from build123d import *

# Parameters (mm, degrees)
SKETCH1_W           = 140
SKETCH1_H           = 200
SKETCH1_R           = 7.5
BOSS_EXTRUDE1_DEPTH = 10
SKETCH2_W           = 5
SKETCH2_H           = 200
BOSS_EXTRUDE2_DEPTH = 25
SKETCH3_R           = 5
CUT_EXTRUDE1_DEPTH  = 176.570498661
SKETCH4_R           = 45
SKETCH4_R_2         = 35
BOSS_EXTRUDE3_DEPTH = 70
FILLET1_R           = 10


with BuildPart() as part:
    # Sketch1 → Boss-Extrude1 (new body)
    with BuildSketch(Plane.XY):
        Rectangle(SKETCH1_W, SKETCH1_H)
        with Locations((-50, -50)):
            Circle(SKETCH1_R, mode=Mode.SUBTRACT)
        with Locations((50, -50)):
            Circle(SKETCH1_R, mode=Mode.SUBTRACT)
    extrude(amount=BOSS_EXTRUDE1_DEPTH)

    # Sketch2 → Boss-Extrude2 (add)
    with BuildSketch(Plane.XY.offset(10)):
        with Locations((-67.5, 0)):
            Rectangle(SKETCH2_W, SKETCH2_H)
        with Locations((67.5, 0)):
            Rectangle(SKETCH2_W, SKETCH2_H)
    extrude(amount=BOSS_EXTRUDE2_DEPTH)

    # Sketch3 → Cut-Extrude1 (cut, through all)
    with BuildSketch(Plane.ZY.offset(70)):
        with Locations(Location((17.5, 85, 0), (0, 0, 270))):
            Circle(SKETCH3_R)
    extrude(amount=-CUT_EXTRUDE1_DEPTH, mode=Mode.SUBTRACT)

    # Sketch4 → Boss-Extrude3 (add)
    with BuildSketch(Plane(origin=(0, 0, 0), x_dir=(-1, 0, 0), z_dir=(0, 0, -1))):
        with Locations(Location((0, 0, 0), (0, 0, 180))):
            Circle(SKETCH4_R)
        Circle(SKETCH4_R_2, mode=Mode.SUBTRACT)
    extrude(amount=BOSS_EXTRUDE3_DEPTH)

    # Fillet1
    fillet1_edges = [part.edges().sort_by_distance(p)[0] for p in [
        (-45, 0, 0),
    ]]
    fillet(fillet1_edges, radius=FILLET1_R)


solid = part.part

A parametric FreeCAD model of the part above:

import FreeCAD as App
import Part
import Sketcher
from FreeCAD import Vector
Q = App.Units.Quantity


def edges_at(feature, points):
    """Names of the edges that pass closest to the given points."""
    edges = feature.Shape.Edges
    near = lambda p: min(range(len(edges)), key=lambda i: edges[i].distToShape(Part.Vertex(*p))[0])
    return sorted({f"Edge{near(p) + 1}" for p in points})


def add_polygon(sketch, points):
    """Adds a closed chain of lines whose ends are joined by coincident constraints."""
    first, n = sketch.GeometryCount, len(points)
    for a, b in zip(points, points[1:] + points[:1]):
        sketch.addGeometry(Part.LineSegment(App.Vector(*a, 0), App.Vector(*b, 0)), False)
    for i in range(n):
        sketch.addConstraint(Sketcher.Constraint("Coincident", first + i, 2, first + (i + 1) % n, 1))

doc = App.newDocument("Part")
body = doc.addObject("PartDesign::Body", "Body")

# Sketch on XY plane
sketch1 = doc.addObject("Sketcher::SketchObject", "Sketch")
body.addObject(sketch1)
sketch1.AttachmentSupport = (doc.XY_Plane, [""])
sketch1.MapMode = "FlatFace"
add_polygon(sketch1, [(-70, 100), (-70, -100), (70, -100), (70, 100)])  # lines 0-3
sketch1.addGeometry(Part.Circle(Vector(-50, -50, 0), Vector(0, 0, 1), 7.5), False)  # 4
sketch1.addGeometry(Part.Circle(Vector(50, -50, 0), Vector(0, 0, 1), 7.5), False)  # 5
sketch1.addConstraint([
    Sketcher.Constraint("Vertical", 0),
    Sketcher.Constraint("Horizontal", 1),
    Sketcher.Constraint("Vertical", 2),
    Sketcher.Constraint("Horizontal", 3),
    Sketcher.Constraint("Equal", 4, 5),
    Sketcher.Constraint("Symmetric", 0, 2, 2, 2, -1, 1),
    Sketcher.Constraint("Symmetric", 4, 3, 5, 3, -2),
    Sketcher.Constraint("Diameter", 4, Q("15 mm")),
    Sketcher.Constraint("DistanceX", 1, 1, 1, 2, Q("140 mm")),
    Sketcher.Constraint("DistanceY", 0, 2, 0, 1, Q("200 mm")),
    Sketcher.Constraint("DistanceX", 4, 3, -1, 1, Q("50 mm")),
    Sketcher.Constraint("DistanceY", 4, 3, -1, 1, Q("50 mm")),
])
pad1 = doc.addObject("PartDesign::Pad", "Pad")
body.addObject(pad1)
pad1.Profile = sketch1
pad1.Length = 10

# Sketch on XY plane
sketch2 = doc.addObject("Sketcher::SketchObject", "Sketch001")
body.addObject(sketch2)
sketch2.AttachmentSupport = (doc.XY_Plane, [""])
sketch2.MapMode = "FlatFace"
sketch2.AttachmentOffset = App.Placement(Vector(0, 0, 10), App.Rotation())
add_polygon(sketch2, [(-70, 100), (-70, -100), (-65, -100), (-65, 100)])  # lines 0-3
add_polygon(sketch2, [(65, 100), (65, -100), (70, -100), (70, 100)])  # lines 4-7
sketch2.addConstraint([
    Sketcher.Constraint("Vertical", 0),
    Sketcher.Constraint("Horizontal", 1),
    Sketcher.Constraint("Vertical", 2),
    Sketcher.Constraint("Horizontal", 3),
    Sketcher.Constraint("Vertical", 4),
    Sketcher.Constraint("Horizontal", 5),
    Sketcher.Constraint("Vertical", 6),
    Sketcher.Constraint("Horizontal", 7),
    Sketcher.Constraint("Symmetric", 2, 2, 4, 2, -1, 1),
    Sketcher.Constraint("Symmetric", 0, 2, 6, 2, -1, 1),
    Sketcher.Constraint("Horizontal", 1, 2, 4, 2),
    Sketcher.Constraint("DistanceX", 1, 1, 1, 2, Q("5 mm")),
    Sketcher.Constraint("DistanceY", 0, 2, 0, 1, Q("200 mm")),
    Sketcher.Constraint("DistanceX", 0, 2, -1, 1, Q("70 mm")),
])
pad2 = doc.addObject("PartDesign::Pad", "Pad001")
body.addObject(pad2)
pad2.Profile = sketch2
pad2.Length = 25

# Sketch on YZ plane
sketch3 = doc.addObject("Sketcher::SketchObject", "Sketch002")
body.addObject(sketch3)
sketch3.AttachmentSupport = (doc.YZ_Plane, [""])
sketch3.MapMode = "FlatFace"
sketch3.AttachmentOffset = App.Placement(Vector(0, 0, -70), App.Rotation())
sketch3.addGeometry(Part.Circle(Vector(85, 17.5, 0), Vector(0, 0, 1), 5), False)
sketch3.addConstraint([
    Sketcher.Constraint("Diameter", 0, Q("10 mm")),
    Sketcher.Constraint("DistanceX", -1, 1, 0, 3, Q("85 mm")),
    Sketcher.Constraint("DistanceY", -1, 1, 0, 3, Q("17.5 mm")),
])
pocket1 = doc.addObject("PartDesign::Pocket", "Pocket")
body.addObject(pocket1)
pocket1.Profile = sketch3
pocket1.Type = "ThroughAll"
pocket1.Reversed = True

# Sketch on XY plane
sketch4 = doc.addObject("Sketcher::SketchObject", "Sketch003")
body.addObject(sketch4)
sketch4.AttachmentSupport = (doc.XY_Plane, [""])
sketch4.MapMode = "FlatFace"
sketch4.addGeometry([
    Part.Circle(Vector(0, 0, 0), Vector(0, 0, 1), 45),
    Part.Circle(Vector(0, 0, 0), Vector(0, 0, 1), 35),
], False)
sketch4.addConstraint([
    Sketcher.Constraint("Coincident", 0, 3, -1, 1),
    Sketcher.Constraint("Coincident", 1, 3, -1, 1),
    Sketcher.Constraint("Diameter", 0, Q("90 mm")),
    Sketcher.Constraint("Diameter", 1, Q("70 mm")),
])
pad3 = doc.addObject("PartDesign::Pad", "Pad002")
body.addObject(pad3)
pad3.Profile = sketch4
pad3.Length = 70
pad3.Reversed = True
doc.recompute()

fillet = doc.addObject("PartDesign::Fillet", "Fillet")
body.addObject(fillet)
fillet.Base = (pad3, edges_at(pad3, [(-45, 0, 0)]))
fillet.Radius = 10

doc.recompute()
